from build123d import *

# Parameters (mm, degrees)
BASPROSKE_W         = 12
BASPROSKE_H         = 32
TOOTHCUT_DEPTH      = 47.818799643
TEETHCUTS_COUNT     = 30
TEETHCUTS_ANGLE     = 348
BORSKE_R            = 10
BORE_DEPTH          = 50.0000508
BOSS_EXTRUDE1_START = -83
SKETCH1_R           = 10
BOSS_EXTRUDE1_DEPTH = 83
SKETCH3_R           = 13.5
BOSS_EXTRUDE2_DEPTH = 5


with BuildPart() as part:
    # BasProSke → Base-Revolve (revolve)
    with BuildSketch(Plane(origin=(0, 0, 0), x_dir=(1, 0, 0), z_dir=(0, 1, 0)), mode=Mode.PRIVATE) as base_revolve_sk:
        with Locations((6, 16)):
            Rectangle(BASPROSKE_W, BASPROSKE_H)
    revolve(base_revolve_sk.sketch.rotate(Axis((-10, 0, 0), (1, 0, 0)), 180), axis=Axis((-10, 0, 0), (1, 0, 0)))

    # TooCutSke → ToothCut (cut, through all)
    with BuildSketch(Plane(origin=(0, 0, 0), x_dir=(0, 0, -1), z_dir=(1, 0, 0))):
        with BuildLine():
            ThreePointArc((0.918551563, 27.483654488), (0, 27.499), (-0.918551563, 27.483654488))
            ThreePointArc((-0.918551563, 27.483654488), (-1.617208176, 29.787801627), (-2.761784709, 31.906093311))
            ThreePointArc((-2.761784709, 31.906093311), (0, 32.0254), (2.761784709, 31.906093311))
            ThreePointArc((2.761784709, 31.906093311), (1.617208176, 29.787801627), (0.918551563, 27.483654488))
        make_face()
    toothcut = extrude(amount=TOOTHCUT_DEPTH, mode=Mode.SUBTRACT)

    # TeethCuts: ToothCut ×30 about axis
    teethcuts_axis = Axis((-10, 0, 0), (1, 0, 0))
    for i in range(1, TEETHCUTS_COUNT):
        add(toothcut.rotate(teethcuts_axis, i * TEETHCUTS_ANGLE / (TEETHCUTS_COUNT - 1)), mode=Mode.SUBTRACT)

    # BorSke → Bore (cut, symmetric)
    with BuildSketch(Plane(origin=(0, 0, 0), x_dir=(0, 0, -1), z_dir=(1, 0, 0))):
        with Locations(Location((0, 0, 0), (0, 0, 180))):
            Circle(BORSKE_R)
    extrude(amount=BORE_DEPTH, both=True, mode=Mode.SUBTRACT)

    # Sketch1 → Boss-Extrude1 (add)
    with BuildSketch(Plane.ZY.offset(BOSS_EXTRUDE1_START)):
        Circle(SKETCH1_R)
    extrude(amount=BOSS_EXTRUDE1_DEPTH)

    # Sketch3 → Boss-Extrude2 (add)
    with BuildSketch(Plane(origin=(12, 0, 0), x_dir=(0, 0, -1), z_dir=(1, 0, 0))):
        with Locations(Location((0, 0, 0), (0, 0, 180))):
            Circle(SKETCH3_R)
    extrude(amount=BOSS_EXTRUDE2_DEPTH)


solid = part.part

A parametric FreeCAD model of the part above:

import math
import FreeCAD as App
import Part
import Sketcher
from FreeCAD import Vector
Q = App.Units.Quantity


def add_polygon(sketch, points):
    """Adds a closed chain of lines whose ends are joined by coincident constraints."""
    first, n = sketch.GeometryCount, len(points)
    for a, b in zip(points, points[1:] + points[:1]):
        sketch.addGeometry(Part.LineSegment(App.Vector(*a, 0), App.Vector(*b, 0)), False)
    for i in range(n):
        sketch.addConstraint(Sketcher.Constraint("Coincident", first + i, 2, first + (i + 1) % n, 1))

doc = App.newDocument("Part")
body = doc.addObject("PartDesign::Body", "Body")

sketch1 = body.newObject("Sketcher::SketchObject", "Sketch")
sketch1.AttachmentSupport = (doc.getObject("XZ_Plane"), [""])
sketch1.MapMode = "FlatFace"
add_polygon(sketch1, [(0, -32), (0, 0), (12, 0), (12, -32)])
sketch1.addConstraint([
    Sketcher.Constraint("Vertical", 0),
    Sketcher.Constraint("Horizontal", 1),
    Sketcher.Constraint("Vertical", 2),
    Sketcher.Constraint("Horizontal", 3),
    Sketcher.Constraint("Coincident", 0, 2, -1, 1),
    Sketcher.Constraint("DistanceX", 1, 1, 1, 2, Q("12 mm")),
    Sketcher.Constraint("DistanceY", 0, 1, 0, 2, Q("32 mm")),
])
revolution = body.newObject("PartDesign::Revolution", "Revolution")
revolution.Profile = sketch1
revolution.ReferenceAxis = (sketch1, ["H_Axis"])
revolution.Angle = 360

sketch2 = body.newObject("Sketcher::SketchObject", "Sketch001")
sketch2.AttachmentSupport = (doc.getObject("YZ_Plane"), [""])
sketch2.MapMode = "FlatFace"
sketch2.addGeometry([
    Part.ArcOfCircle(Part.Circle(Vector(0, 0, 0), Vector(0, 0, 1), 27.5), math.radians(-1.91), math.radians(1.91)),
    Part.ArcOfCircle(Part.Circle(Vector(25.2, -12.7, 0), Vector(0, 0, 1), 12), math.radians(56), math.radians(79)),
    Part.ArcOfCircle(Part.Circle(Vector(0, 0, 0), Vector(0, 0, 1), 32), math.radians(-4.95), math.radians(4.95)),
    Part.ArcOfCircle(Part.Circle(Vector(25.2, 12.7, 0), Vector(0, 0, 1), 12), math.radians(-79), math.radians(-56)),
], False)
sketch2.addConstraint([
    Sketcher.Constraint("Coincident", 0, 1, 1, 2),
    Sketcher.Constraint("Coincident", 1, 1, 2, 1),
    Sketcher.Constraint("Coincident", 2, 2, 3, 2),
    Sketcher.Constraint("Coincident", 3, 1, 0, 2),
    Sketcher.Constraint("Coincident", 0, 3, -1, 1),
    Sketcher.Constraint("Coincident", 2, 3, -1, 1),
    Sketcher.Constraint("Equal", 1, 3),
    Sketcher.Constraint("Symmetric", 1, 3, 3, 3, -1),
    Sketcher.Constraint("Radius", 1, Q("12 mm")),
    Sketcher.Constraint("Radius", 0, Q("27.499 mm")),
    Sketcher.Constraint("Radius", 2, Q("32.0254 mm")),
    Sketcher.Constraint("DistanceY", 1, 3, -1, 1, Q("12.693642 mm")),
    Sketcher.Constraint("DistanceY", 0, 1, -1, 1, Q("0.918552 mm")),
])
pocket1 = body.newObject("PartDesign::Pocket", "Pocket")
pocket1.Profile = sketch2
pocket1.Type = "ThroughAll"
pocket1.Reversed = True
doc.recompute()

polarpattern = body.newObject("PartDesign::PolarPattern", "PolarPattern")
polarpattern.Originals = [pocket1]
polarpattern.Axis = (doc.getObject("X_Axis"), [""])
polarpattern.Angle = 360
polarpattern.Occurrences = 30
body.Tip = polarpattern

sketch3 = body.newObject("Sketcher::SketchObject", "Sketch002")
sketch3.AttachmentSupport = (doc.getObject("YZ_Plane"), [""])
sketch3.MapMode = "FlatFace"
sketch3.addGeometry(Part.Circle(Vector(0, 0, 0), Vector(0, 0, 1), 10), False)
sketch3.addConstraint([
    Sketcher.Constraint("Coincident", 0, 3, -1, 1),
    Sketcher.Constraint("Diameter", 0, Q("20 mm")),
])
pocket2 = body.newObject("PartDesign::Pocket", "Pocket001")
pocket2.Profile = sketch3
pocket2.Length = 100.000102
pocket2.Midplane = True

sketch4 = body.newObject("Sketcher::SketchObject", "Sketch003")
sketch4.AttachmentSupport = (doc.getObject("YZ_Plane"), [""])
sketch4.MapMode = "FlatFace"
sketch4.AttachmentOffset = App.Placement(Vector(0, 0, 83), App.Rotation())
sketch4.addGeometry(Part.Circle(Vector(0, 0, 0), Vector(0, 0, 1), 10), False)
sketch4.addConstraint([
    Sketcher.Constraint("Coincident", 0, 3, -1, 1),
    Sketcher.Constraint("Diameter", 0, Q("20 mm")),
])
pad1 = body.newObject("PartDesign::Pad", "Pad")
pad1.Profile = sketch4
pad1.Length = 83
pad1.Reversed = True

sketch5 = body.newObject("Sketcher::SketchObject", "Sketch004")
sketch5.AttachmentSupport = (doc.getObject("YZ_Plane"), [""])
sketch5.MapMode = "FlatFace"
sketch5.AttachmentOffset = App.Placement(Vector(0, 0, 12), App.Rotation())
sketch5.addGeometry(Part.Circle(Vector(0, 0, 0), Vector(0, 0, 1), 14), False)
sketch5.addConstraint([
    Sketcher.Constraint("Coincident", 0, 3, -1, 1),
    Sketcher.Constraint("Diameter", 0, Q("27 mm")),
])
pad2 = body.newObject("PartDesign::Pad", "Pad001")
pad2.Profile = sketch5
pad2.Length = 5

doc.recompute()
